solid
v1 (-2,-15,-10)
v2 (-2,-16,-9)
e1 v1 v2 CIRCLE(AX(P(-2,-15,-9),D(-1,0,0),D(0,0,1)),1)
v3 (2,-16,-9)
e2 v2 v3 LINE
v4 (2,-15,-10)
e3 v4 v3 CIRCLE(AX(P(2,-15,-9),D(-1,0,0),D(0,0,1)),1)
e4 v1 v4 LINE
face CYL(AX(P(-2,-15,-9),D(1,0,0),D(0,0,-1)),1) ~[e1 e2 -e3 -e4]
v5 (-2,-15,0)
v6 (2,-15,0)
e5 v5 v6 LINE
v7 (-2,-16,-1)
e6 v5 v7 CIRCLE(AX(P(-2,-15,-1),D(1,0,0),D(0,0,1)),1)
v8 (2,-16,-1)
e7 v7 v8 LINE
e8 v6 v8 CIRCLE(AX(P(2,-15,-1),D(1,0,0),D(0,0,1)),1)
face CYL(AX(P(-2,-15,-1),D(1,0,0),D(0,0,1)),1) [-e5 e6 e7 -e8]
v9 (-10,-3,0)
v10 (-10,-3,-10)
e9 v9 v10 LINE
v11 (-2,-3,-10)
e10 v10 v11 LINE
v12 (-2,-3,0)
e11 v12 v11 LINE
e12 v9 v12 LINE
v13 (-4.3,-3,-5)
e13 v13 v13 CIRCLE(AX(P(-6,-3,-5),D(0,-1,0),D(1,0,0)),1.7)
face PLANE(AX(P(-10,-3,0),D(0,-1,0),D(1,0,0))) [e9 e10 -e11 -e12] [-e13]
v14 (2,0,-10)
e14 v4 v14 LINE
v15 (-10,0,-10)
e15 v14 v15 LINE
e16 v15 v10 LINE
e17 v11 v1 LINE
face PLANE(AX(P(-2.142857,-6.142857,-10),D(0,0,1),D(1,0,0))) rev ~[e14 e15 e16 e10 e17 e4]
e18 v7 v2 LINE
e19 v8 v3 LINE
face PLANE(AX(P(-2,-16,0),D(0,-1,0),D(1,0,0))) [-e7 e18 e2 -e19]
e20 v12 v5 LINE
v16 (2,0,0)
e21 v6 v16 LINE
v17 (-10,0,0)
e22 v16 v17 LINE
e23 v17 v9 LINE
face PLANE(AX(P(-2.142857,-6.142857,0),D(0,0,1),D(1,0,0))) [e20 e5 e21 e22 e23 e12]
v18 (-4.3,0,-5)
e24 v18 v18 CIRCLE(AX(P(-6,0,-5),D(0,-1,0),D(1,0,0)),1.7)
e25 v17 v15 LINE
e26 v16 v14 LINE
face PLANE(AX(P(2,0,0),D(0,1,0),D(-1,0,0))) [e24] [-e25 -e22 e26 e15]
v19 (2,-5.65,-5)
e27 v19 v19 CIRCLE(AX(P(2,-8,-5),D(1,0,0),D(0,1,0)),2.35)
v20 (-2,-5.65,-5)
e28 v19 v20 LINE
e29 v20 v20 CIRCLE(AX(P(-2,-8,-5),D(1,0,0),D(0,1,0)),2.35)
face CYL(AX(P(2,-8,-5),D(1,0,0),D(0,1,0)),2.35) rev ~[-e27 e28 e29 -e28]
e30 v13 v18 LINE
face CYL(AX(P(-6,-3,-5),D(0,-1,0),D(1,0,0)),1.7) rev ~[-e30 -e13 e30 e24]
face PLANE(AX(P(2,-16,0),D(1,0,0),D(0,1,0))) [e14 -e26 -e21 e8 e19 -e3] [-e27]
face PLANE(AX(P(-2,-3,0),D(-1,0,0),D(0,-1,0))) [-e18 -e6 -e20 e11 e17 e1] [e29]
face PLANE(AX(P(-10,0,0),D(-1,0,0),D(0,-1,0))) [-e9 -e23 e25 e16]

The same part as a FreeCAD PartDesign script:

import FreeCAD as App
import Part
import Sketcher
Q = App.Units.Quantity


def edges_at(feature, points):
    """Names of the edges that pass closest to the given points."""
    edges = feature.Shape.Edges
    near = lambda p: min(range(len(edges)), key=lambda i: edges[i].distToShape(Part.Vertex(*p))[0])
    return sorted({f"Edge{near(p) + 1}" for p in points})


def add_polygon(sketch, points):
    """Adds a closed chain of lines whose ends are joined by coincident constraints."""
    first, n = sketch.GeometryCount, len(points)
    for a, b in zip(points, points[1:] + points[:1]):
        sketch.addGeometry(Part.LineSegment(App.Vector(*a, 0), App.Vector(*b, 0)), False)
    for i in range(n):
        sketch.addConstraint(Sketcher.Constraint("Coincident", first + i, 2, first + (i + 1) % n, 1))

doc = App.newDocument("Part")
body = doc.addObject("PartDesign::Body", "Body")

# Sketch on XY plane
sketch1 = body.newObject("Sketcher::SketchObject", "Sketch")
sketch1.AttachmentSupport = (doc.getObject("XY_Plane"), [""])
sketch1.MapMode = "FlatFace"
add_polygon(sketch1, [(-10, 0), (-10, -3), (-2, -3), (-2, -16), (2, -16), (2, 0)])  # lines 0-5
sketch1.addConstraint(Sketcher.Constraint("Vertical", 0))
sketch1.addConstraint(Sketcher.Constraint("Horizontal", 1))
sketch1.addConstraint(Sketcher.Constraint("Vertical", 2))
sketch1.addConstraint(Sketcher.Constraint("Horizontal", 3))
sketch1.addConstraint(Sketcher.Constraint("Vertical", 4))
sketch1.addConstraint(Sketcher.Constraint("Horizontal", 5))
sketch1.addConstraint(Sketcher.Constraint("PointOnObject", 4, 2, -1))
sketch1.addConstraint(Sketcher.Constraint("DistanceX", 1, 1, 1, 2, Q("8 mm")))
sketch1.addConstraint(Sketcher.Constraint("DistanceX", 3, 1, 3, 2, Q("4 mm")))
sketch1.addConstraint(Sketcher.Constraint("DistanceY", 0, 2, 0, 1, Q("3 mm")))
sketch1.addConstraint(Sketcher.Constraint("DistanceY", 2, 2, 2, 1, Q("13 mm")))
sketch1.addConstraint(Sketcher.Constraint("DistanceX", 0, 2, -1, 1, Q("10 mm")))
pad1 = body.newObject("PartDesign::Pad", "Pad")
pad1.Profile = sketch1
pad1.Length = 10
pad1.Reversed = True

# Sketch on XZ plane
sketch2 = body.newObject("Sketcher::SketchObject", "Sketch001")
sketch2.AttachmentSupport = (doc.getObject("XZ_Plane"), [""])
sketch2.MapMode = "FlatFace"
sketch2.AttachmentOffset = App.Placement(App.Vector(0, 0, 3), App.Rotation())
sketch2.addGeometry(Part.Circle(App.Vector(-6, -5, 0), App.Vector(0, 0, 1), 1.7), False)
sketch2.addConstraint(Sketcher.Constraint("Diameter", 0, Q("3.4 mm")))
sketch2.addConstraint(Sketcher.Constraint("DistanceX", 0, 3, -1, 1, Q("6 mm")))
sketch2.addConstraint(Sketcher.Constraint("DistanceY", 0, 3, -1, 1, Q("5 mm")))
pocket1 = body.newObject("PartDesign::Pocket", "Pocket")
pocket1.Profile = sketch2
pocket1.Length = 25

# Sketch on YZ plane
sketch3 = body.newObject("Sketcher::SketchObject", "Sketch002")
sketch3.AttachmentSupport = (doc.getObject("YZ_Plane"), [""])
sketch3.MapMode = "FlatFace"
sketch3.AttachmentOffset = App.Placement(App.Vector(0, 0, 2), App.Rotation())
sketch3.addGeometry(Part.Circle(App.Vector(-8, -5, 0), App.Vector(0, 0, 1), 2.4), False)
sketch3.addConstraint(Sketcher.Constraint("Diameter", 0, Q("4.7 mm")))
sketch3.addConstraint(Sketcher.Constraint("DistanceX", 0, 3, -1, 1, Q("8 mm")))
sketch3.addConstraint(Sketcher.Constraint("DistanceY", 0, 3, -1, 1, Q("5 mm")))
pocket2 = body.newObject("PartDesign::Pocket", "Pocket001")
pocket2.Profile = sketch3
pocket2.Length = 5
doc.recompute()

fillet = body.newObject("PartDesign::Fillet", "Fillet")
fillet.Base = (pocket2, edges_at(pocket2, [(0, -16, 0), (0, -16, -10)]))
fillet.Radius = 1

doc.recompute()
